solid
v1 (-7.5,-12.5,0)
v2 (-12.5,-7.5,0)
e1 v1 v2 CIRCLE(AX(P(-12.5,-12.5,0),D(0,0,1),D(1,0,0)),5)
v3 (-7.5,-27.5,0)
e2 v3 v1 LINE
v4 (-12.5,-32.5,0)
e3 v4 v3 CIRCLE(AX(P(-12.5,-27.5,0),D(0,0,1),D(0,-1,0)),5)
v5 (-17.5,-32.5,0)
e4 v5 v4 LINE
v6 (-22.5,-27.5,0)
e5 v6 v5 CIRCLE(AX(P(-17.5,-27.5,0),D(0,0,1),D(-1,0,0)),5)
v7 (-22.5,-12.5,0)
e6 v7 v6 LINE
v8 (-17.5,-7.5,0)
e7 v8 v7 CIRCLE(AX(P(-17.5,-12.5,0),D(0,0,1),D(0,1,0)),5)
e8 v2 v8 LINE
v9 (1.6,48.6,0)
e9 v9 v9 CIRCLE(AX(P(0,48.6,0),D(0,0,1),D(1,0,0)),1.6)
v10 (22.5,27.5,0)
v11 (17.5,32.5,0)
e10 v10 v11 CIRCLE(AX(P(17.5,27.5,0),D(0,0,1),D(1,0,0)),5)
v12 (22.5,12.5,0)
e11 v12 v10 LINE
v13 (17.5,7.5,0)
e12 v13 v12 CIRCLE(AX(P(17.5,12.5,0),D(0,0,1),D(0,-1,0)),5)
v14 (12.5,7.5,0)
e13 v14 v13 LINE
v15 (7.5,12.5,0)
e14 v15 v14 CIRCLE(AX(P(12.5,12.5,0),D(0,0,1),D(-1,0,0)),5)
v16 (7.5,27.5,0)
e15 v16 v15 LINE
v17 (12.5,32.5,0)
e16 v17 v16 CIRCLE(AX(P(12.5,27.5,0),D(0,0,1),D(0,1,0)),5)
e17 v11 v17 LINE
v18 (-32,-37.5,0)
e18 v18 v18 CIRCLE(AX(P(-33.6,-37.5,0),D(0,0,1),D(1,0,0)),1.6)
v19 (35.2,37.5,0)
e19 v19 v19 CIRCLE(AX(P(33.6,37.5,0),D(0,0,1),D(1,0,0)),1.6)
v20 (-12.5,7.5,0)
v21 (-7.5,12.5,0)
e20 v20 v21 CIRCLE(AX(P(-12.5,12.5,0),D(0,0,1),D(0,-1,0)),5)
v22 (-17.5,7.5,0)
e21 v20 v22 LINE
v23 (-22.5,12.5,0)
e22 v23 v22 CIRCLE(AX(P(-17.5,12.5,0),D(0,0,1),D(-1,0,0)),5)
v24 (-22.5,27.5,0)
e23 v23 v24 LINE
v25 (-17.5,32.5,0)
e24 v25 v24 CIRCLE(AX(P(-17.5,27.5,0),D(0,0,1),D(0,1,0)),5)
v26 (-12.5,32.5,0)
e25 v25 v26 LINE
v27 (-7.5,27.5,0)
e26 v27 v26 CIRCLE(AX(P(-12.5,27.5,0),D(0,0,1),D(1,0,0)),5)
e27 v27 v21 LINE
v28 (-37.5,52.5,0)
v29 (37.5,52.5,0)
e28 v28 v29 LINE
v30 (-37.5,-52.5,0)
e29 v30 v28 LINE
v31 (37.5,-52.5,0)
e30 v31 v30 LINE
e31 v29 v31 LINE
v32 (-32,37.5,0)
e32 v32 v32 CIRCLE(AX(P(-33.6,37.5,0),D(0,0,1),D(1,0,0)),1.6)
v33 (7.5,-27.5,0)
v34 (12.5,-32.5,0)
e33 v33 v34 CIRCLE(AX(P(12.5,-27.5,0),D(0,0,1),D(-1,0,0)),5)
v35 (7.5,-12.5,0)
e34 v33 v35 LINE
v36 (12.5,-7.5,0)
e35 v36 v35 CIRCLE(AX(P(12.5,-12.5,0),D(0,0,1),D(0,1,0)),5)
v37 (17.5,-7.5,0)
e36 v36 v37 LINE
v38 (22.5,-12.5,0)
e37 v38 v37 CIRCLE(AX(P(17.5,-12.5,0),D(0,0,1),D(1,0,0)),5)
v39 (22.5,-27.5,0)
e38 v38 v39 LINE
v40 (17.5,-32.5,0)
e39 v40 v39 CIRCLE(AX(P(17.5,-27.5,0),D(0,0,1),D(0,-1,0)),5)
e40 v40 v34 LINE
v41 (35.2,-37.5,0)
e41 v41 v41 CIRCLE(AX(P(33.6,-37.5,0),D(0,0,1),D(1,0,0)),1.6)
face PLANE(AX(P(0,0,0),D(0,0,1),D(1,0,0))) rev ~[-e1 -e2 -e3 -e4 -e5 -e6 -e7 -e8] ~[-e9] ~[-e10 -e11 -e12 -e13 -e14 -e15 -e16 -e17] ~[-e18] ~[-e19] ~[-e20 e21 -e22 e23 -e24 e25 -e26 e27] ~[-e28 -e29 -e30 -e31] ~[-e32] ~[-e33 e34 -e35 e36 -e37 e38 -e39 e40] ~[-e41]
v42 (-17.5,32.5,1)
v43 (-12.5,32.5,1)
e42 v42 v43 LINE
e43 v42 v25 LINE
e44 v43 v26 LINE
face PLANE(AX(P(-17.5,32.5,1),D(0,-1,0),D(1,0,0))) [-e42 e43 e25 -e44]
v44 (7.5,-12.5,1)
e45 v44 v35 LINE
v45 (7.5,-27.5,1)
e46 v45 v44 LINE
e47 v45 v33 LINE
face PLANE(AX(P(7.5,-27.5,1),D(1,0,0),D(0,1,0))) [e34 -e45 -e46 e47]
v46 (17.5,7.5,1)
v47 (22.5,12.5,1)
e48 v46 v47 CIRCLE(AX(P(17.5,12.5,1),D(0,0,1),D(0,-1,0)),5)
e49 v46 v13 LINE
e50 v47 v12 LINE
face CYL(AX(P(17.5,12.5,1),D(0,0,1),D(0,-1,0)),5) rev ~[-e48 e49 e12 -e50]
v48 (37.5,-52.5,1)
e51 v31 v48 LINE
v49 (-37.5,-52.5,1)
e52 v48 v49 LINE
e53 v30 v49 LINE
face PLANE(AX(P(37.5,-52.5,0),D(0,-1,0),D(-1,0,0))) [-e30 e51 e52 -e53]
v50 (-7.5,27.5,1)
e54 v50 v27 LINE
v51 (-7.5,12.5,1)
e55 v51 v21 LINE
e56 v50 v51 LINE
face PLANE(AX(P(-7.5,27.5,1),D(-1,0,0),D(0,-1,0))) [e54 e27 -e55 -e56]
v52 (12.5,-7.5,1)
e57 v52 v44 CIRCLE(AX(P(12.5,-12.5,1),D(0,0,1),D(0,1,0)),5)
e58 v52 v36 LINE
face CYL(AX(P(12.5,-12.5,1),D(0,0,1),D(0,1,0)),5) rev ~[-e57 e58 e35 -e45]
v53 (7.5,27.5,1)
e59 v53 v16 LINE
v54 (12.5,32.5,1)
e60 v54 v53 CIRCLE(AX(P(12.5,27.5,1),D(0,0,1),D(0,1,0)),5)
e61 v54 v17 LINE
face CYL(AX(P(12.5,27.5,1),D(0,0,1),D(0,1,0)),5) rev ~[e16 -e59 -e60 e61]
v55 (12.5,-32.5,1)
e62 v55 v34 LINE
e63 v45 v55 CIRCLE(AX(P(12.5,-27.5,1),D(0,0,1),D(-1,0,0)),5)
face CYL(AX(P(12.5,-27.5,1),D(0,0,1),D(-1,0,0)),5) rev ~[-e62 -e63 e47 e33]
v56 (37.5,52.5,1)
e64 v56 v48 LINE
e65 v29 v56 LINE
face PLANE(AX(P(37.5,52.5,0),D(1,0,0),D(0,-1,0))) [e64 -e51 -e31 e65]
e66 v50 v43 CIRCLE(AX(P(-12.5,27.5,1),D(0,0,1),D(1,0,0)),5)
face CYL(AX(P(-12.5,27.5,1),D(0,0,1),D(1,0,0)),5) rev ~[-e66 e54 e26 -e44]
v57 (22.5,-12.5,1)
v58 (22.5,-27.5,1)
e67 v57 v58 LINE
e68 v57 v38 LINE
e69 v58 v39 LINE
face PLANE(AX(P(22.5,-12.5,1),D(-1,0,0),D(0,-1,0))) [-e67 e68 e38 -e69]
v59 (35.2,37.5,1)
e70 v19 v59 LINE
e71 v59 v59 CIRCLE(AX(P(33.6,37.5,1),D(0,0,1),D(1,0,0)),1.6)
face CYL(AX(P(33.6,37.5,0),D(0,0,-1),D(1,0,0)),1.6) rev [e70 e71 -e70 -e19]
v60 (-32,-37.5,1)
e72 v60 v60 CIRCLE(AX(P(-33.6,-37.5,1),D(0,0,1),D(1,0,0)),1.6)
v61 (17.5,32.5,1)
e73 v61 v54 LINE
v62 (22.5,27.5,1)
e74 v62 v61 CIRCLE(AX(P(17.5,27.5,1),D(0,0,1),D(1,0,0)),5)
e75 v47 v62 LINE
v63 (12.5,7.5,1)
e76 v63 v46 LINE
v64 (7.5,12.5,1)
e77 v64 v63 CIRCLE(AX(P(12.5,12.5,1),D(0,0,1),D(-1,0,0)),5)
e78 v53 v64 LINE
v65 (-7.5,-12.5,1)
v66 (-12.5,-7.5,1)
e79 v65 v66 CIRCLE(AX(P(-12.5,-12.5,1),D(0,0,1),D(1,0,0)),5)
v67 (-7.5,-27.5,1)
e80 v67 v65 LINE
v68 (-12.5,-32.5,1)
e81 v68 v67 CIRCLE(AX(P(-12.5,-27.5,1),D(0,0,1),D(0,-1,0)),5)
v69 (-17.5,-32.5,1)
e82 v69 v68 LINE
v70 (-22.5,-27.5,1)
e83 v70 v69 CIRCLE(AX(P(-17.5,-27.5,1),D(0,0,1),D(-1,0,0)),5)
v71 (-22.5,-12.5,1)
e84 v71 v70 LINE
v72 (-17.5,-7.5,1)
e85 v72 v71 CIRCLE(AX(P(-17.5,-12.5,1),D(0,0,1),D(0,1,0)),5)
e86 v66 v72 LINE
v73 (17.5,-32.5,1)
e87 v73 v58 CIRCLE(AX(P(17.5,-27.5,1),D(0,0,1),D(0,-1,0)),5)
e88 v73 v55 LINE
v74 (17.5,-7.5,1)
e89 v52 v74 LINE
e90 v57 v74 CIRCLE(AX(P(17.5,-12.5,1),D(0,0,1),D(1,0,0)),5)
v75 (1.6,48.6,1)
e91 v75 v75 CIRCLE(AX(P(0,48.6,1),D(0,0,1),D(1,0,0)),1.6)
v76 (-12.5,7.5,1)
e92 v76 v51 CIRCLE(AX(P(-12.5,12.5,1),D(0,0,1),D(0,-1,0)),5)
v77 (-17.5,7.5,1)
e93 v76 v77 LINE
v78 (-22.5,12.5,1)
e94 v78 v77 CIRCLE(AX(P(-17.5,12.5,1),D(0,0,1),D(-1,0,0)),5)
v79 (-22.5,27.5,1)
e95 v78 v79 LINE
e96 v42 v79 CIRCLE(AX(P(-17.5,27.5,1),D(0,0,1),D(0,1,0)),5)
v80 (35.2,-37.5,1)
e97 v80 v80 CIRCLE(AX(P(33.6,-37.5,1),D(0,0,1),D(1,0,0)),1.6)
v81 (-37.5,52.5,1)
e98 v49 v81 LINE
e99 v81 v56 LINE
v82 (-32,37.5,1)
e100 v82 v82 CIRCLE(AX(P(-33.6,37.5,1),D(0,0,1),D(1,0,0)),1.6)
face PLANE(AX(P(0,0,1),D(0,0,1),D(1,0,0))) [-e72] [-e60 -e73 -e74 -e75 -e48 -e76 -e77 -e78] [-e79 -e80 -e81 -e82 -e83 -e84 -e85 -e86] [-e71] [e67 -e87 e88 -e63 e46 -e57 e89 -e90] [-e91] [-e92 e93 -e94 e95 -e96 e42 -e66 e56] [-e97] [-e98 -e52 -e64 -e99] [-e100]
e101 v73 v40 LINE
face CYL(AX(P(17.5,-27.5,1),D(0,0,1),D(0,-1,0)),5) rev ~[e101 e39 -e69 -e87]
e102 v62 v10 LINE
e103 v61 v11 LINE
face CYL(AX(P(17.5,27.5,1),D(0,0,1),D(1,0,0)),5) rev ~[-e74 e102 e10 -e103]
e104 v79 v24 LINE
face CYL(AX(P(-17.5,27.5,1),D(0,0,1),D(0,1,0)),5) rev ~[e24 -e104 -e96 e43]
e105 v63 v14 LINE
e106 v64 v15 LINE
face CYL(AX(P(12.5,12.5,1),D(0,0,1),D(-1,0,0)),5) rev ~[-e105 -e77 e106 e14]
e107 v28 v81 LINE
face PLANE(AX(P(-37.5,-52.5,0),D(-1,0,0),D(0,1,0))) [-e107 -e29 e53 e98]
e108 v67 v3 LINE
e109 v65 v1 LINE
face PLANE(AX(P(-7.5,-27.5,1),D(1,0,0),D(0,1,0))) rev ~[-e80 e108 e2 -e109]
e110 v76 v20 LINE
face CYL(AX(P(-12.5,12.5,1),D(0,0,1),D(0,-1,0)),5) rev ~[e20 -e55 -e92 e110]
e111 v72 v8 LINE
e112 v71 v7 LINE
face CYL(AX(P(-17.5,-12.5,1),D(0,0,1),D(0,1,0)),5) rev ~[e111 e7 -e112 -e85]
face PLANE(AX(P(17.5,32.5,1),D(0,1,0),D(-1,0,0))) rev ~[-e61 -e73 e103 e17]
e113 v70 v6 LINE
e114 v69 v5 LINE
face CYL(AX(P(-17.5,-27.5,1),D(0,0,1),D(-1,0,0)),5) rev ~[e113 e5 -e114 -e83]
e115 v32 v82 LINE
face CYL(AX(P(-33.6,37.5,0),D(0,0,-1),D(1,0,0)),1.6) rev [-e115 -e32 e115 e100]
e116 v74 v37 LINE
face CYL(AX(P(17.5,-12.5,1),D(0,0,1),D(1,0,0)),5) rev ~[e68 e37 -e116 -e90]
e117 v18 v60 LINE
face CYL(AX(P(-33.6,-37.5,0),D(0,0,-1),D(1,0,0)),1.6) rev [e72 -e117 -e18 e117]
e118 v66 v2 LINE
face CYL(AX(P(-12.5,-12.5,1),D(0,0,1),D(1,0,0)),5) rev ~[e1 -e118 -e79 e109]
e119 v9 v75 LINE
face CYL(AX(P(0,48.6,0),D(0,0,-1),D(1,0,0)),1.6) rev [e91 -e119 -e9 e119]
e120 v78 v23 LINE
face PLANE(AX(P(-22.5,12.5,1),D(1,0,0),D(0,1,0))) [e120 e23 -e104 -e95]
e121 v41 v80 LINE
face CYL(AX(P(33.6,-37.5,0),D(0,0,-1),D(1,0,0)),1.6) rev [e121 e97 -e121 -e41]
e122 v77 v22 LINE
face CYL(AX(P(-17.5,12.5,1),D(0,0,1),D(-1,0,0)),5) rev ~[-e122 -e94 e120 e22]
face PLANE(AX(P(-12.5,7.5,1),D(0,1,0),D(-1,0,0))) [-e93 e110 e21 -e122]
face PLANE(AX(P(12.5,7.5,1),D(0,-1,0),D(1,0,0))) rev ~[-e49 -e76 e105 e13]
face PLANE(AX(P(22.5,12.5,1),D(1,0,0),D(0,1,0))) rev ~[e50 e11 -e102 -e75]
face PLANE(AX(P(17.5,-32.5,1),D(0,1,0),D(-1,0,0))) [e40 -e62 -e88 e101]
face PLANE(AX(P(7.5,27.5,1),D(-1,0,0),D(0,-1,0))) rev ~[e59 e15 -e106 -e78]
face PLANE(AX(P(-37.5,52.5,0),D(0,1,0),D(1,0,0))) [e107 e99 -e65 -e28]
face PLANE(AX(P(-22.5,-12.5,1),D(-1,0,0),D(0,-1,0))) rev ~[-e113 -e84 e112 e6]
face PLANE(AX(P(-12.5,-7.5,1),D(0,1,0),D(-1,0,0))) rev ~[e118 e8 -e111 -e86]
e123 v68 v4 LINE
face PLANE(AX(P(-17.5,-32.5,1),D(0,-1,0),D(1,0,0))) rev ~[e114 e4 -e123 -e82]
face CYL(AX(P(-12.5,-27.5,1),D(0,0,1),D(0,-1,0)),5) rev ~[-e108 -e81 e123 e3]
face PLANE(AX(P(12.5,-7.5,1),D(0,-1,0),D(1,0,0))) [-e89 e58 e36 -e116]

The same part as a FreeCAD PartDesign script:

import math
import FreeCAD as App
import Part
import Sketcher
from FreeCAD import Vector
Q = App.Units.Quantity


def add_polygon(sketch, points):
    """Adds a closed chain of lines whose ends are joined by coincident constraints."""
    first, n = sketch.GeometryCount, len(points)
    for a, b in zip(points, points[1:] + points[:1]):
        sketch.addGeometry(Part.LineSegment(App.Vector(*a, 0), App.Vector(*b, 0)), False)
    for i in range(n):
        sketch.addConstraint(Sketcher.Constraint("Coincident", first + i, 2, first + (i + 1) % n, 1))

doc = App.newDocument("Part")
body = doc.addObject("PartDesign::Body", "Body")

# Sketch on XY plane
sketch1 = doc.addObject("Sketcher::SketchObject", "Sketch")
body.addObject(sketch1)
sketch1.AttachmentSupport = (doc.XY_Plane, [""])
sketch1.MapMode = "FlatFace"
add_polygon(sketch1, [(37.5, 52.5), (-37.5, 52.5), (-37.5, -52.5), (37.5, -52.5)])  # lines 0-3
sketch1.addGeometry(Part.Circle(Vector(-33.6, -37.5, 0), Vector(0, 0, 1), 1.6), False)  # 4
sketch1.addGeometry(Part.Circle(Vector(33.6, -37.5, 0), Vector(0, 0, 1), 1.6), False)  # 5
sketch1.addGeometry(Part.Circle(Vector(-33.6, 37.5, 0), Vector(0, 0, 1), 1.6), False)  # 6
sketch1.addGeometry(Part.Circle(Vector(0, 48.6, 0), Vector(0, 0, 1), 1.6), False)  # 7
sketch1.addGeometry(Part.Circle(Vector(33.6, 37.5, 0), Vector(0, 0, 1), 1.6), False)  # 8
sketch1.addConstraint([
    Sketcher.Constraint("Horizontal", 0),
    Sketcher.Constraint("Vertical", 1),
    Sketcher.Constraint("Horizontal", 2),
    Sketcher.Constraint("Vertical", 3),
    Sketcher.Constraint("Equal", 4, 5),
    Sketcher.Constraint("Equal", 5, 6),
    Sketcher.Constraint("Equal", 6, 7),
    Sketcher.Constraint("Equal", 7, 8),
    Sketcher.Constraint("Symmetric", 5, 3, 6, 3, -1, 1),
    Sketcher.Constraint("Symmetric", 4, 3, 8, 3, -1, 1),
    Sketcher.Constraint("Symmetric", 0, 2, 2, 2, -1, 1),
    Sketcher.Constraint("Symmetric", 4, 3, 5, 3, -2),
    Sketcher.Constraint("PointOnObject", 7, 3, -2),
    Sketcher.Constraint("Diameter", 4, Q("3.2 mm")),
    Sketcher.Constraint("DistanceX", 0, 2, 0, 1, Q("75 mm")),
    Sketcher.Constraint("DistanceY", 1, 2, 1, 1, Q("105 mm")),
    Sketcher.Constraint("DistanceY", 4, 3, 6, 3, Q("75 mm")),
    Sketcher.Constraint("DistanceX", 0, 2, 6, 3, Q("3.9 mm")),
    Sketcher.Constraint("DistanceY", 7, 3, 0, 2, Q("3.9 mm")),
])
pad1 = doc.addObject("PartDesign::Pad", "Pad")
body.addObject(pad1)
pad1.Profile = sketch1
pad1.Length = 1

# Sketch on XY plane
sketch2 = doc.addObject("Sketcher::SketchObject", "Sketch001")
body.addObject(sketch2)
sketch2.AttachmentSupport = (doc.XY_Plane, [""])
sketch2.MapMode = "FlatFace"
sketch2.AttachmentOffset = App.Placement(Vector(0, 0, 1), App.Rotation())
sketch2.addGeometry([
    Part.LineSegment(Vector(-12, 32, 0), Vector(-18, 32, 0)),  # 0
    Part.ArcOfCircle(Part.Circle(Vector(-18, 28, 0), Vector(0, 0, 1), 5), math.radians(90), math.radians(180)),  # 1
    Part.LineSegment(Vector(-22, 28, 0), Vector(-22, 12, 0)),  # 2
    Part.ArcOfCircle(Part.Circle(Vector(-18, 12, 0), Vector(0, 0, 1), 5), math.radians(180), math.radians(270)),  # 3
    Part.LineSegment(Vector(-18, 8, 0), Vector(-12, 8, 0)),  # 4
    Part.ArcOfCircle(Part.Circle(Vector(-12, 12, 0), Vector(0, 0, 1), 5), math.radians(-90), math.radians(0)),  # 5
    Part.LineSegment(Vector(-8, 12, 0), Vector(-8, 28, 0)),  # 6
    Part.ArcOfCircle(Part.Circle(Vector(-12, 28, 0), Vector(0, 0, 1), 5), math.radians(0), math.radians(90)),  # 7
    Part.ArcOfCircle(Part.Circle(Vector(18, 28, 0), Vector(0, 0, 1), 5), math.radians(0), math.radians(90)),  # 8
    Part.LineSegment(Vector(18, 32, 0), Vector(12, 32, 0)),  # 9
    Part.ArcOfCircle(Part.Circle(Vector(12, 28, 0), Vector(0, 0, 1), 5), math.radians(90), math.radians(180)),  # 10
    Part.LineSegment(Vector(8, 28, 0), Vector(8, 12, 0)),  # 11
    Part.ArcOfCircle(Part.Circle(Vector(12, 12, 0), Vector(0, 0, 1), 5), math.radians(180), math.radians(270)),  # 12
    Part.LineSegment(Vector(12, 8, 0), Vector(18, 8, 0)),  # 13
    Part.ArcOfCircle(Part.Circle(Vector(18, 12, 0), Vector(0, 0, 1), 5), math.radians(-90), math.radians(0)),  # 14
    Part.LineSegment(Vector(22, 12, 0), Vector(22, 28, 0)),  # 15
    Part.ArcOfCircle(Part.Circle(Vector(-18, -28, 0), Vector(0, 0, 1), 5), math.radians(180), math.radians(270)),  # 16
    Part.LineSegment(Vector(-18, -32, 0), Vector(-12, -32, 0)),  # 17
    Part.ArcOfCircle(Part.Circle(Vector(-12, -28, 0), Vector(0, 0, 1), 5), math.radians(-90), math.radians(0)),  # 18
    Part.LineSegment(Vector(-8, -28, 0), Vector(-8, -12, 0)),  # 19
    Part.ArcOfCircle(Part.Circle(Vector(-12, -12, 0), Vector(0, 0, 1), 5), math.radians(0), math.radians(90)),  # 20
    Part.LineSegment(Vector(-12, -8, 0), Vector(-18, -8, 0)),  # 21
    Part.ArcOfCircle(Part.Circle(Vector(-18, -12, 0), Vector(0, 0, 1), 5), math.radians(90), math.radians(180)),  # 22
    Part.LineSegment(Vector(-22, -12, 0), Vector(-22, -28, 0)),  # 23
    Part.LineSegment(Vector(18, -8, 0), Vector(12, -8, 0)),  # 24
    Part.ArcOfCircle(Part.Circle(Vector(12, -12, 0), Vector(0, 0, 1), 5), math.radians(90), math.radians(180)),  # 25
    Part.LineSegment(Vector(8, -12, 0), Vector(8, -28, 0)),  # 26
    Part.ArcOfCircle(Part.Circle(Vector(12, -28, 0), Vector(0, 0, 1), 5), math.radians(180), math.radians(270)),  # 27
    Part.LineSegment(Vector(12, -32, 0), Vector(18, -32, 0)),  # 28
    Part.ArcOfCircle(Part.Circle(Vector(18, -28, 0), Vector(0, 0, 1), 5), math.radians(-90), math.radians(0)),  # 29
    Part.LineSegment(Vector(22, -28, 0), Vector(22, -12, 0)),  # 30
    Part.ArcOfCircle(Part.Circle(Vector(18, -12, 0), Vector(0, 0, 1), 5), math.radians(0), math.radians(90)),  # 31
], False)
sketch2.addConstraint([
    Sketcher.Constraint("Tangent", 0, 2, 1, 1),
    Sketcher.Constraint("Tangent", 1, 2, 2, 1),
    Sketcher.Constraint("Tangent", 2, 2, 3, 1),
    Sketcher.Constraint("Tangent", 3, 2, 4, 1),
    Sketcher.Constraint("Tangent", 4, 2, 5, 1),
    Sketcher.Constraint("Tangent", 5, 2, 6, 1),
    Sketcher.Constraint("Tangent", 6, 2, 7, 1),
    Sketcher.Constraint("Tangent", 7, 2, 0, 1),
    Sketcher.Constraint("Tangent", 8, 2, 9, 1),
    Sketcher.Constraint("Tangent", 9, 2, 10, 1),
    Sketcher.Constraint("Tangent", 10, 2, 11, 1),
    Sketcher.Constraint("Tangent", 11, 2, 12, 1),
    Sketcher.Constraint("Tangent", 12, 2, 13, 1),
    Sketcher.Constraint("Tangent", 13, 2, 14, 1),
    Sketcher.Constraint("Tangent", 14, 2, 15, 1),
    Sketcher.Constraint("Tangent", 15, 2, 8, 1),
    Sketcher.Constraint("Tangent", 16, 2, 17, 1),
    Sketcher.Constraint("Tangent", 17, 2, 18, 1),
    Sketcher.Constraint("Tangent", 18, 2, 19, 1),
    Sketcher.Constraint("Tangent", 19, 2, 20, 1),
    Sketcher.Constraint("Tangent", 20, 2, 21, 1),
    Sketcher.Constraint("Tangent", 21, 2, 22, 1),
    Sketcher.Constraint("Tangent", 22, 2, 23, 1),
    Sketcher.Constraint("Tangent", 23, 2, 16, 1),
    Sketcher.Constraint("Tangent", 24, 2, 25, 1),
    Sketcher.Constraint("Tangent", 25, 2, 26, 1),
    Sketcher.Constraint("Tangent", 26, 2, 27, 1),
    Sketcher.Constraint("Tangent", 27, 2, 28, 1),
    Sketcher.Constraint("Tangent", 28, 2, 29, 1),
    Sketcher.Constraint("Tangent", 29, 2, 30, 1),
    Sketcher.Constraint("Tangent", 30, 2, 31, 1),
    Sketcher.Constraint("Tangent", 31, 2, 24, 1),
    Sketcher.Constraint("Horizontal", 0),
    Sketcher.Constraint("Vertical", 2),
    Sketcher.Constraint("Horizontal", 4),
    Sketcher.Constraint("Vertical", 6),
    Sketcher.Constraint("Horizontal", 9),
    Sketcher.Constraint("Vertical", 11),
    Sketcher.Constraint("Horizontal", 13),
    Sketcher.Constraint("Vertical", 15),
    Sketcher.Constraint("Horizontal", 17),
    Sketcher.Constraint("Vertical", 19),
    Sketcher.Constraint("Horizontal", 21),
    Sketcher.Constraint("Vertical", 23),
    Sketcher.Constraint("Horizontal", 24),
    Sketcher.Constraint("Vertical", 26),
    Sketcher.Constraint("Horizontal", 28),
    Sketcher.Constraint("Vertical", 30),
    Sketcher.Constraint("Equal", 1, 3),
    Sketcher.Constraint("Equal", 3, 5),
    Sketcher.Constraint("Equal", 5, 7),
    Sketcher.Constraint("Equal", 7, 8),
    Sketcher.Constraint("Equal", 8, 10),
    Sketcher.Constraint("Equal", 10, 12),
    Sketcher.Constraint("Equal", 12, 14),
    Sketcher.Constraint("Equal", 14, 16),
    Sketcher.Constraint("Equal", 16, 18),
    Sketcher.Constraint("Equal", 18, 20),
    Sketcher.Constraint("Equal", 20, 22),
    Sketcher.Constraint("Equal", 22, 25),
    Sketcher.Constraint("Equal", 25, 27),
    Sketcher.Constraint("Equal", 27, 29),
    Sketcher.Constraint("Equal", 29, 31),
    Sketcher.Constraint("Symmetric", 8, 3, 16, 3, -1, 1),
    Sketcher.Constraint("Symmetric", 12, 3, 20, 3, -1, 1),
    Sketcher.Constraint("Symmetric", 5, 3, 25, 3, -1, 1),
    Sketcher.Constraint("Symmetric", 1, 3, 29, 3, -1, 1),
    Sketcher.Constraint("Symmetric", 1, 3, 8, 3, -2),
    Sketcher.Constraint("Symmetric", 5, 3, 12, 3, -2),
    Sketcher.Constraint("Radius", 1, Q("5 mm")),
    Sketcher.Constraint("DistanceX", 0, 2, 0, 1, Q("5 mm")),
    Sketcher.Constraint("DistanceY", 2, 2, 2, 1, Q("15 mm")),
    Sketcher.Constraint("DistanceX", 7, 3, 10, 3, Q("25 mm")),
    Sketcher.Constraint("DistanceY", 20, 3, 5, 3, Q("25 mm")),
])
pocket1 = doc.addObject("PartDesign::Pocket", "Pocket")
body.addObject(pocket1)
pocket1.Profile = sketch2
pocket1.Length = 1

doc.recompute()
